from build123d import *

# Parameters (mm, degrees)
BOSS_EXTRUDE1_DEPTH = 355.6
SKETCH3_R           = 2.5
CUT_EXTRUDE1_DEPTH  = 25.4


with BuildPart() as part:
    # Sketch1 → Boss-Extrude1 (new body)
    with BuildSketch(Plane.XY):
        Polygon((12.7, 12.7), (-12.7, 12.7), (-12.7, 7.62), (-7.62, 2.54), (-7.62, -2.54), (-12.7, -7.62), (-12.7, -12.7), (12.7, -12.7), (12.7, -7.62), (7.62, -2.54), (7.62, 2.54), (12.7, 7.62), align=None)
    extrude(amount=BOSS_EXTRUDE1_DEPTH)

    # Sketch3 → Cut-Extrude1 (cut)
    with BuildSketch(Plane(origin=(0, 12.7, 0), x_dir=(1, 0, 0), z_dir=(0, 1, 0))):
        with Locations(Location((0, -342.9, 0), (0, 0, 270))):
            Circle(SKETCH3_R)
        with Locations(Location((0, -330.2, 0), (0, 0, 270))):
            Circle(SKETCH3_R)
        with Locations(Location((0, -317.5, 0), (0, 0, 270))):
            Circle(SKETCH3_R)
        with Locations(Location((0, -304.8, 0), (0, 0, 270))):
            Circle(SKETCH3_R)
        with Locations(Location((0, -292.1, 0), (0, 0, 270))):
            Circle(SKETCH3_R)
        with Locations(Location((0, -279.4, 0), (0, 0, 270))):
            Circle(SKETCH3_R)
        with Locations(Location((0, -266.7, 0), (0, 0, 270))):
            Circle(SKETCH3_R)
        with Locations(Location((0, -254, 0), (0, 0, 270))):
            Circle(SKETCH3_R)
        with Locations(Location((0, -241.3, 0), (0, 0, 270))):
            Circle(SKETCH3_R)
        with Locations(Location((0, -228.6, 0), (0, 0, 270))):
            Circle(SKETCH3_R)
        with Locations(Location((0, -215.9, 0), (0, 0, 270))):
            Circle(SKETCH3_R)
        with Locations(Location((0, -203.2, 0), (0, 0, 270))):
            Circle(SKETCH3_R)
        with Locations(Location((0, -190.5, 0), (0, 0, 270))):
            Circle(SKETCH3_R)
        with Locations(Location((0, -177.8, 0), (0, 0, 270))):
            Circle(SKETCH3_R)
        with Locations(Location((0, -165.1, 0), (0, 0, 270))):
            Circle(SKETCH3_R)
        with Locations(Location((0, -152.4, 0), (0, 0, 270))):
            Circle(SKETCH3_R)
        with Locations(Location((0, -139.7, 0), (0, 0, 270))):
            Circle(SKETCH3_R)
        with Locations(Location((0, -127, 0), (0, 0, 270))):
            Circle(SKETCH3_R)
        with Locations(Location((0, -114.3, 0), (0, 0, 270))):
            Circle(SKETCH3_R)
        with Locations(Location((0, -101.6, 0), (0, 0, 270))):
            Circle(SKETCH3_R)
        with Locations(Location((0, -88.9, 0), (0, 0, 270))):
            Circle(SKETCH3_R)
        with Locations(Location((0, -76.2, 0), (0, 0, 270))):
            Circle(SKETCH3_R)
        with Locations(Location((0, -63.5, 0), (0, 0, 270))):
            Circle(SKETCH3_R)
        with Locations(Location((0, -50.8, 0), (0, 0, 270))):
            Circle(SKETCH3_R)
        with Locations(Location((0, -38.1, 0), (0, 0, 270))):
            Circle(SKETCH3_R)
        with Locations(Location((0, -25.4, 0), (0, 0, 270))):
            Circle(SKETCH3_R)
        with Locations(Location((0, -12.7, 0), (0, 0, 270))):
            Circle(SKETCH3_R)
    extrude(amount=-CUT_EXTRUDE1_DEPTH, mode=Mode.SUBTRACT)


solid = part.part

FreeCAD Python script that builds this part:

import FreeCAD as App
import Part
import Sketcher
Q = App.Units.Quantity


def add_polygon(sketch, points):
    """Adds a closed chain of lines whose ends are joined by coincident constraints."""
    first, n = sketch.GeometryCount, len(points)
    for a, b in zip(points, points[1:] + points[:1]):
        sketch.addGeometry(Part.LineSegment(App.Vector(*a, 0), App.Vector(*b, 0)), False)
    for i in range(n):
        sketch.addConstraint(Sketcher.Constraint("Coincident", first + i, 2, first + (i + 1) % n, 1))

doc = App.newDocument("Part")
body = doc.addObject("PartDesign::Body", "Body")

# Sketch on XY plane
sketch1 = body.newObject("Sketcher::SketchObject", "Sketch")
sketch1.AttachmentSupport = (doc.getObject("XY_Plane"), [""])
sketch1.MapMode = "FlatFace"
add_polygon(sketch1, [(12.7, 12.7), (-12.7, 12.7), (-12.7, 7.62), (-7.62, 2.54), (-7.62, -2.54), (-12.7, -7.62), (-12.7, -12.7), (12.7, -12.7), (12.7, -7.62), (7.62, -2.54), (7.62, 2.54), (12.7, 7.62)])  # lines 0-11
sketch1.addConstraint([
    Sketcher.Constraint("Horizontal", 0),
    Sketcher.Constraint("Vertical", 1),
    Sketcher.Constraint("Vertical", 3),
    Sketcher.Constraint("Vertical", 5),
    Sketcher.Constraint("Horizontal", 6),
    Sketcher.Constraint("Vertical", 7),
    Sketcher.Constraint("Vertical", 9),
    Sketcher.Constraint("Vertical", 11),
    Sketcher.Constraint("Symmetric", 0, 2, 6, 2, -1, 1),
    Sketcher.Constraint("Symmetric", 2, 2, 8, 2, -1, 1),
    Sketcher.Constraint("Symmetric", 4, 2, 10, 2, -1, 1),
    Sketcher.Constraint("Symmetric", 4, 2, 7, 2, -2),
    Sketcher.Constraint("Perpendicular", 2, 4),
    Sketcher.Constraint("Perpendicular", 4, 8),
    Sketcher.Constraint("Perpendicular", 8, 10),
    Sketcher.Constraint("Horizontal", 3, 2, 8, 2),
    Sketcher.Constraint("Equal", 1, 3),
    Sketcher.Constraint("DistanceX", 0, 2, 0, 1, Q("1 in")),
    Sketcher.Constraint("DistanceY", 1, 2, 1, 1, Q("0.2 in")),
    Sketcher.Constraint("DistanceY", 5, 2, 0, 2, Q("1 in")),
])
pad1 = body.newObject("PartDesign::Pad", "Pad")
pad1.Profile = sketch1
pad1.Length = Q("14 in")

# Sketch on XZ plane
sketch2 = body.newObject("Sketcher::SketchObject", "Sketch001")
sketch2.AttachmentSupport = (doc.getObject("XZ_Plane"), [""])
sketch2.MapMode = "FlatFace"
sketch2.AttachmentOffset = App.Placement(App.Vector(0, 0, -0.5 * 25.4), App.Rotation())
sketch2.addGeometry([
    Part.Circle(App.Vector(0, 342.9, 0), App.Vector(0, 0, 1), 2.5),  # 0
    Part.Circle(App.Vector(0, 330.2, 0), App.Vector(0, 0, 1), 2.5),  # 1
    Part.Circle(App.Vector(0, 317.5, 0), App.Vector(0, 0, 1), 2.5),  # 2
    Part.Circle(App.Vector(0, 304.8, 0), App.Vector(0, 0, 1), 2.5),  # 3
    Part.Circle(App.Vector(0, 292.1, 0), App.Vector(0, 0, 1), 2.5),  # 4
    Part.Circle(App.Vector(0, 279.4, 0), App.Vector(0, 0, 1), 2.5),  # 5
    Part.Circle(App.Vector(0, 266.7, 0), App.Vector(0, 0, 1), 2.5),  # 6
    Part.Circle(App.Vector(0, 254, 0), App.Vector(0, 0, 1), 2.5),  # 7
    Part.Circle(App.Vector(0, 241.3, 0), App.Vector(0, 0, 1), 2.5),  # 8
    Part.Circle(App.Vector(0, 228.6, 0), App.Vector(0, 0, 1), 2.5),  # 9
    Part.Circle(App.Vector(0, 215.9, 0), App.Vector(0, 0, 1), 2.5),  # 10
    Part.Circle(App.Vector(0, 203.2, 0), App.Vector(0, 0, 1), 2.5),  # 11
    Part.Circle(App.Vector(0, 190.5, 0), App.Vector(0, 0, 1), 2.5),  # 12
    Part.Circle(App.Vector(0, 177.8, 0), App.Vector(0, 0, 1), 2.5),  # 13
    Part.Circle(App.Vector(0, 165.1, 0), App.Vector(0, 0, 1), 2.5),  # 14
    Part.Circle(App.Vector(0, 152.4, 0), App.Vector(0, 0, 1), 2.5),  # 15
    Part.Circle(App.Vector(0, 139.7, 0), App.Vector(0, 0, 1), 2.5),  # 16
    Part.Circle(App.Vector(0, 127, 0), App.Vector(0, 0, 1), 2.5),  # 17
    Part.Circle(App.Vector(0, 114.3, 0), App.Vector(0, 0, 1), 2.5),  # 18
    Part.Circle(App.Vector(0, 101.6, 0), App.Vector(0, 0, 1), 2.5),  # 19
    Part.Circle(App.Vector(0, 88.9, 0), App.Vector(0, 0, 1), 2.5),  # 20
    Part.Circle(App.Vector(0, 76.2, 0), App.Vector(0, 0, 1), 2.5),  # 21
    Part.Circle(App.Vector(0, 63.5, 0), App.Vector(0, 0, 1), 2.5),  # 22
    Part.Circle(App.Vector(0, 50.8, 0), App.Vector(0, 0, 1), 2.5),  # 23
    Part.Circle(App.Vector(0, 38.1, 0), App.Vector(0, 0, 1), 2.5),  # 24
    Part.Circle(App.Vector(0, 25.4, 0), App.Vector(0, 0, 1), 2.5),  # 25
    Part.Circle(App.Vector(0, 12.7, 0), App.Vector(0, 0, 1), 2.5),  # 26
], False)
sketch2.addConstraint([
    Sketcher.Constraint("Equal", 0, 1),
    Sketcher.Constraint("Equal", 1, 2),
    Sketcher.Constraint("Equal", 2, 3),
    Sketcher.Constraint("Equal", 3, 4),
    Sketcher.Constraint("Equal", 4, 5),
    Sketcher.Constraint("Equal", 5, 6),
    Sketcher.Constraint("Equal", 6, 7),
    Sketcher.Constraint("Equal", 7, 8),
    Sketcher.Constraint("Equal", 8, 9),
    Sketcher.Constraint("Equal", 9, 10),
    Sketcher.Constraint("Equal", 10, 11),
    Sketcher.Constraint("Equal", 11, 12),
    Sketcher.Constraint("Equal", 12, 13),
    Sketcher.Constraint("Equal", 13, 14),
    Sketcher.Constraint("Equal", 14, 15),
    Sketcher.Constraint("Equal", 15, 16),
    Sketcher.Constraint("Equal", 16, 17),
    Sketcher.Constraint("Equal", 17, 18),
    Sketcher.Constraint("Equal", 18, 19),
    Sketcher.Constraint("Equal", 19, 20),
    Sketcher.Constraint("Equal", 20, 21),
    Sketcher.Constraint("Equal", 21, 22),
    Sketcher.Constraint("Equal", 22, 23),
    Sketcher.Constraint("Equal", 23, 24),
    Sketcher.Constraint("Equal", 24, 25),
    Sketcher.Constraint("Equal", 25, 26),
    Sketcher.Constraint("PointOnObject", 0, 3, -2),
    Sketcher.Constraint("PointOnObject", 1, 3, -2),
    Sketcher.Constraint("PointOnObject", 2, 3, -2),
    Sketcher.Constraint("PointOnObject", 3, 3, -2),
    Sketcher.Constraint("PointOnObject", 4, 3, -2),
    Sketcher.Constraint("PointOnObject", 5, 3, -2),
    Sketcher.Constraint("PointOnObject", 6, 3, -2),
    Sketcher.Constraint("PointOnObject", 7, 3, -2),
    Sketcher.Constraint("PointOnObject", 8, 3, -2),
    Sketcher.Constraint("PointOnObject", 9, 3, -2),
    Sketcher.Constraint("PointOnObject", 10, 3, -2),
    Sketcher.Constraint("PointOnObject", 11, 3, -2),
    Sketcher.Constraint("PointOnObject", 12, 3, -2),
    Sketcher.Constraint("PointOnObject", 13, 3, -2),
    Sketcher.Constraint("PointOnObject", 14, 3, -2),
    Sketcher.Constraint("PointOnObject", 15, 3, -2),
    Sketcher.Constraint("PointOnObject", 16, 3, -2),
    Sketcher.Constraint("PointOnObject", 17, 3, -2),
    Sketcher.Constraint("PointOnObject", 18, 3, -2),
    Sketcher.Constraint("PointOnObject", 19, 3, -2),
    Sketcher.Constraint("PointOnObject", 20, 3, -2),
    Sketcher.Constraint("PointOnObject", 21, 3, -2),
    Sketcher.Constraint("PointOnObject", 22, 3, -2),
    Sketcher.Constraint("PointOnObject", 23, 3, -2),
    Sketcher.Constraint("PointOnObject", 24, 3, -2),
    Sketcher.Constraint("PointOnObject", 25, 3, -2),
    Sketcher.Constraint("PointOnObject", 26, 3, -2),
    Sketcher.Constraint("DistanceY", -1, 1, 1, 3, Q("13 in")),
    Sketcher.Constraint("DistanceY", -1, 1, 3, 3, Q("12 in")),
    Sketcher.Constraint("DistanceY", -1, 1, 5, 3, Q("11 in")),
    Sketcher.Constraint("DistanceY", -1, 1, 7, 3, Q("10 in")),
    Sketcher.Constraint("DistanceY", -1, 1, 9, 3, Q("9 in")),
    Sketcher.Constraint("DistanceY", -1, 1, 11, 3, Q("8 in")),
    Sketcher.Constraint("DistanceY", -1, 1, 13, 3, Q("7 in")),
    Sketcher.Constraint("DistanceY", -1, 1, 15, 3, Q("6 in")),
    Sketcher.Constraint("DistanceY", -1, 1, 17, 3, Q("5 in")),
    Sketcher.Constraint("DistanceY", -1, 1, 19, 3, Q("4 in")),
    Sketcher.Constraint("DistanceY", -1, 1, 21, 3, Q("3 in")),
    Sketcher.Constraint("DistanceY", -1, 1, 23, 3, Q("2 in")),
    Sketcher.Constraint("DistanceY", -1, 1, 25, 3, Q("1 in")),
    Sketcher.Constraint("DistanceY", 2, 3, 0, 3, Q("1 in")),
    Sketcher.Constraint("DistanceY", 4, 3, 2, 3, Q("1 in")),
    Sketcher.Constraint("DistanceY", 6, 3, 4, 3, Q("1 in")),
    Sketcher.Constraint("DistanceY", 8, 3, 6, 3, Q("1 in")),
    Sketcher.Constraint("DistanceY", 10, 3, 8, 3, Q("1 in")),
    Sketcher.Constraint("DistanceY", 12, 3, 10, 3, Q("1 in")),
    Sketcher.Constraint("DistanceY", 14, 3, 12, 3, Q("1 in")),
    Sketcher.Constraint("DistanceY", 16, 3, 14, 3, Q("1 in")),
    Sketcher.Constraint("DistanceY", 18, 3, 16, 3, Q("1 in")),
    Sketcher.Constraint("DistanceY", 20, 3, 18, 3, Q("1 in")),
    Sketcher.Constraint("DistanceY", 22, 3, 20, 3, Q("1 in")),
    Sketcher.Constraint("DistanceY", 24, 3, 22, 3, Q("1 in")),
    Sketcher.Constraint("DistanceY", 26, 3, 24, 3, Q("1 in")),
    Sketcher.Constraint("DistanceY", -1, 1, 0, 3, Q("13.5 in")),
    Sketcher.Constraint("Diameter", 0, 5.0),
])
pocket1 = body.newObject("PartDesign::Pocket", "Pocket")
pocket1.Profile = sketch2
pocket1.Length = Q("1 in")
pocket1.Reversed = True

doc.recompute()
